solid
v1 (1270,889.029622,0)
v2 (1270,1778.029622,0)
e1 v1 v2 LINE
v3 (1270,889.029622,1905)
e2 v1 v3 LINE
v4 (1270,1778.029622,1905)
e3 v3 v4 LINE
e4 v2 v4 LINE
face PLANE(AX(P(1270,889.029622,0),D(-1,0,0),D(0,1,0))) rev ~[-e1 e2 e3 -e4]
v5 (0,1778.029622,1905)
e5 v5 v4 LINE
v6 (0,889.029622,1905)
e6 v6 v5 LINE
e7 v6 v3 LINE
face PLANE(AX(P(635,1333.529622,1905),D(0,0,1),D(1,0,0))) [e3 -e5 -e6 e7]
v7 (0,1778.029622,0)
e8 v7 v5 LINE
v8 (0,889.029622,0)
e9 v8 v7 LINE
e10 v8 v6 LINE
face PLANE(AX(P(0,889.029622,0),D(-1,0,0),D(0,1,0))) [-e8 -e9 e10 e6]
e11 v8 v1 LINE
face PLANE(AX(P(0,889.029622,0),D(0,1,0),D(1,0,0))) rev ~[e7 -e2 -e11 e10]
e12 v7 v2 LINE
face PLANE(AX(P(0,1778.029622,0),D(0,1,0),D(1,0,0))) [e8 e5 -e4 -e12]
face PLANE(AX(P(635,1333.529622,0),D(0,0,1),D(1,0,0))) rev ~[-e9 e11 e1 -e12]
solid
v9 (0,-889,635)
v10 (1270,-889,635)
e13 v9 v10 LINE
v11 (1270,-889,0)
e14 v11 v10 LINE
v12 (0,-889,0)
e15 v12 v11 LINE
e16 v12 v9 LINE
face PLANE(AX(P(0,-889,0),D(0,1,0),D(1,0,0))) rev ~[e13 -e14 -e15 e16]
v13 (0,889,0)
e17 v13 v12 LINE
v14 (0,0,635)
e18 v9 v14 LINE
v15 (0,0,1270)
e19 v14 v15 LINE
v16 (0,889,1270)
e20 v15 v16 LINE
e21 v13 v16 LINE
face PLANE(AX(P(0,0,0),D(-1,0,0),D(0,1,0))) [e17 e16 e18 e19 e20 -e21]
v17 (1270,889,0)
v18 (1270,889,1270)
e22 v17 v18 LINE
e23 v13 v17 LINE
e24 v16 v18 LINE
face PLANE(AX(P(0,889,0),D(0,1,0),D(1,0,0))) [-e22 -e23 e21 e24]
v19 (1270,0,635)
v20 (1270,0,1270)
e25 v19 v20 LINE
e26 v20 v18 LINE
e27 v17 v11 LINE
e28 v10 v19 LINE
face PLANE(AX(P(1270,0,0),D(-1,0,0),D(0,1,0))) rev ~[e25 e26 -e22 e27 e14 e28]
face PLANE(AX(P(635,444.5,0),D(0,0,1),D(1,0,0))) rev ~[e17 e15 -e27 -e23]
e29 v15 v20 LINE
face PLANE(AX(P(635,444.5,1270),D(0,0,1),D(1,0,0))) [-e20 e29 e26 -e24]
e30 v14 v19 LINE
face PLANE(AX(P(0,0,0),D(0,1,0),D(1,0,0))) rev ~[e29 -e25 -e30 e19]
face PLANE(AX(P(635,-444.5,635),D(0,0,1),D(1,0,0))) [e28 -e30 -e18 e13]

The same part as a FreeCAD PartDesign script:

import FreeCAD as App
import Part
import Sketcher
from FreeCAD import Vector
Q = App.Units.Quantity


def add_polygon(sketch, points):
    """Adds a closed chain of lines whose ends are joined by coincident constraints."""
    first, n = sketch.GeometryCount, len(points)
    for a, b in zip(points, points[1:] + points[:1]):
        sketch.addGeometry(Part.LineSegment(App.Vector(*a, 0), App.Vector(*b, 0)), False)
    for i in range(n):
        sketch.addConstraint(Sketcher.Constraint("Coincident", first + i, 2, first + (i + 1) % n, 1))

doc = App.newDocument("Part")
params = doc.addObject("Spreadsheet::Sheet", "Params")
for row, (alias, value) in enumerate([
    ("sketch1_width", "50 in"),
    ("sketch1_height", "35 in"),
    ("pad1_length", "25 in"),
    ("sketch2_width", "50 in"),
    ("sketch2_height", "35 in"),
    ("pad2_length", "50 in"),
    ("sketch3_width", "50 in"),
    ("sketch3_height", "35 in"),
    ("pad3_length", "75 in"),
], start=1):
    params.set(f"A{row}", alias)
    params.set(f"B{row}", "=" + value)
    params.setAlias(f"B{row}", alias)

body = doc.addObject("PartDesign::Body", "Body")

# Sketch on XY plane
sketch1 = doc.addObject("Sketcher::SketchObject", "Sketch")
body.addObject(sketch1)
sketch1.AttachmentSupport = (doc.XY_Plane, [""])
sketch1.MapMode = "FlatFace"
add_polygon(sketch1, [(0, 0), (0, -889), (1270, -889), (1270, 0)])  # lines 0-3
sketch1.addConstraint([
    Sketcher.Constraint("Vertical", 0),
    Sketcher.Constraint("Horizontal", 1),
    Sketcher.Constraint("Vertical", 2),
    Sketcher.Constraint("Horizontal", 3),
    Sketcher.Constraint("Coincident", 3, 2, -1, 1),
    Sketcher.Constraint("DistanceX", 1, 1, 1, 2, Q("50 in")),
    Sketcher.Constraint("DistanceY", 0, 2, 0, 1, Q("35 in")),
])
sketch1.setExpression("Constraints[9]", "Params.sketch1_width")
sketch1.setExpression("Constraints[10]", "Params.sketch1_height")
pad1 = doc.addObject("PartDesign::Pad", "Pad")
body.addObject(pad1)
pad1.Profile = sketch1
pad1.setExpression("Length", "Params.pad1_length")

# Sketch on XY plane
sketch2 = doc.addObject("Sketcher::SketchObject", "Sketch001")
body.addObject(sketch2)
sketch2.AttachmentSupport = (doc.XY_Plane, [""])
sketch2.MapMode = "FlatFace"
add_polygon(sketch2, [(0, 889), (0, 0), (1270, 0), (1270, 889)])  # lines 0-3
sketch2.addConstraint([
    Sketcher.Constraint("Vertical", 0),
    Sketcher.Constraint("Horizontal", 1),
    Sketcher.Constraint("Vertical", 2),
    Sketcher.Constraint("Horizontal", 3),
    Sketcher.Constraint("Coincident", 0, 2, -1, 1),
    Sketcher.Constraint("DistanceX", 1, 1, 1, 2, Q("50 in")),
    Sketcher.Constraint("DistanceY", 0, 2, 0, 1, Q("35 in")),
])
sketch2.setExpression("Constraints[9]", "Params.sketch2_width")
sketch2.setExpression("Constraints[10]", "Params.sketch2_height")
pad2 = doc.addObject("PartDesign::Pad", "Pad001")
body.addObject(pad2)
pad2.Profile = sketch2
pad2.setExpression("Length", "Params.pad2_length")
body2 = doc.addObject("PartDesign::Body", "Body001")

# Sketch on XY plane
sketch3 = doc.addObject("Sketcher::SketchObject", "Sketch002")
body2.addObject(sketch3)
sketch3.AttachmentSupport = (doc.getObject("XY_Plane001"), [""])
sketch3.MapMode = "FlatFace"
add_polygon(sketch3, [(0, 1778), (0, 889), (1270, 889), (1270, 1778)])  # lines 0-3
sketch3.addConstraint([
    Sketcher.Constraint("Vertical", 0),
    Sketcher.Constraint("Horizontal", 1),
    Sketcher.Constraint("Vertical", 2),
    Sketcher.Constraint("Horizontal", 3),
    Sketcher.Constraint("PointOnObject", 0, 2, -2),
    Sketcher.Constraint("DistanceX", 1, 1, 1, 2, Q("50 in")),
    Sketcher.Constraint("DistanceY", 0, 2, 0, 1, Q("35 in")),
    Sketcher.Constraint("DistanceY", -1, 1, 0, 2, Q("889.029622 mm")),
])
sketch3.setExpression("Constraints[9]", "Params.sketch3_width")
sketch3.setExpression("Constraints[10]", "Params.sketch3_height")
pad3 = doc.addObject("PartDesign::Pad", "Pad002")
body2.addObject(pad3)
pad3.Profile = sketch3
pad3.setExpression("Length", "Params.pad3_length")

doc.recompute()
